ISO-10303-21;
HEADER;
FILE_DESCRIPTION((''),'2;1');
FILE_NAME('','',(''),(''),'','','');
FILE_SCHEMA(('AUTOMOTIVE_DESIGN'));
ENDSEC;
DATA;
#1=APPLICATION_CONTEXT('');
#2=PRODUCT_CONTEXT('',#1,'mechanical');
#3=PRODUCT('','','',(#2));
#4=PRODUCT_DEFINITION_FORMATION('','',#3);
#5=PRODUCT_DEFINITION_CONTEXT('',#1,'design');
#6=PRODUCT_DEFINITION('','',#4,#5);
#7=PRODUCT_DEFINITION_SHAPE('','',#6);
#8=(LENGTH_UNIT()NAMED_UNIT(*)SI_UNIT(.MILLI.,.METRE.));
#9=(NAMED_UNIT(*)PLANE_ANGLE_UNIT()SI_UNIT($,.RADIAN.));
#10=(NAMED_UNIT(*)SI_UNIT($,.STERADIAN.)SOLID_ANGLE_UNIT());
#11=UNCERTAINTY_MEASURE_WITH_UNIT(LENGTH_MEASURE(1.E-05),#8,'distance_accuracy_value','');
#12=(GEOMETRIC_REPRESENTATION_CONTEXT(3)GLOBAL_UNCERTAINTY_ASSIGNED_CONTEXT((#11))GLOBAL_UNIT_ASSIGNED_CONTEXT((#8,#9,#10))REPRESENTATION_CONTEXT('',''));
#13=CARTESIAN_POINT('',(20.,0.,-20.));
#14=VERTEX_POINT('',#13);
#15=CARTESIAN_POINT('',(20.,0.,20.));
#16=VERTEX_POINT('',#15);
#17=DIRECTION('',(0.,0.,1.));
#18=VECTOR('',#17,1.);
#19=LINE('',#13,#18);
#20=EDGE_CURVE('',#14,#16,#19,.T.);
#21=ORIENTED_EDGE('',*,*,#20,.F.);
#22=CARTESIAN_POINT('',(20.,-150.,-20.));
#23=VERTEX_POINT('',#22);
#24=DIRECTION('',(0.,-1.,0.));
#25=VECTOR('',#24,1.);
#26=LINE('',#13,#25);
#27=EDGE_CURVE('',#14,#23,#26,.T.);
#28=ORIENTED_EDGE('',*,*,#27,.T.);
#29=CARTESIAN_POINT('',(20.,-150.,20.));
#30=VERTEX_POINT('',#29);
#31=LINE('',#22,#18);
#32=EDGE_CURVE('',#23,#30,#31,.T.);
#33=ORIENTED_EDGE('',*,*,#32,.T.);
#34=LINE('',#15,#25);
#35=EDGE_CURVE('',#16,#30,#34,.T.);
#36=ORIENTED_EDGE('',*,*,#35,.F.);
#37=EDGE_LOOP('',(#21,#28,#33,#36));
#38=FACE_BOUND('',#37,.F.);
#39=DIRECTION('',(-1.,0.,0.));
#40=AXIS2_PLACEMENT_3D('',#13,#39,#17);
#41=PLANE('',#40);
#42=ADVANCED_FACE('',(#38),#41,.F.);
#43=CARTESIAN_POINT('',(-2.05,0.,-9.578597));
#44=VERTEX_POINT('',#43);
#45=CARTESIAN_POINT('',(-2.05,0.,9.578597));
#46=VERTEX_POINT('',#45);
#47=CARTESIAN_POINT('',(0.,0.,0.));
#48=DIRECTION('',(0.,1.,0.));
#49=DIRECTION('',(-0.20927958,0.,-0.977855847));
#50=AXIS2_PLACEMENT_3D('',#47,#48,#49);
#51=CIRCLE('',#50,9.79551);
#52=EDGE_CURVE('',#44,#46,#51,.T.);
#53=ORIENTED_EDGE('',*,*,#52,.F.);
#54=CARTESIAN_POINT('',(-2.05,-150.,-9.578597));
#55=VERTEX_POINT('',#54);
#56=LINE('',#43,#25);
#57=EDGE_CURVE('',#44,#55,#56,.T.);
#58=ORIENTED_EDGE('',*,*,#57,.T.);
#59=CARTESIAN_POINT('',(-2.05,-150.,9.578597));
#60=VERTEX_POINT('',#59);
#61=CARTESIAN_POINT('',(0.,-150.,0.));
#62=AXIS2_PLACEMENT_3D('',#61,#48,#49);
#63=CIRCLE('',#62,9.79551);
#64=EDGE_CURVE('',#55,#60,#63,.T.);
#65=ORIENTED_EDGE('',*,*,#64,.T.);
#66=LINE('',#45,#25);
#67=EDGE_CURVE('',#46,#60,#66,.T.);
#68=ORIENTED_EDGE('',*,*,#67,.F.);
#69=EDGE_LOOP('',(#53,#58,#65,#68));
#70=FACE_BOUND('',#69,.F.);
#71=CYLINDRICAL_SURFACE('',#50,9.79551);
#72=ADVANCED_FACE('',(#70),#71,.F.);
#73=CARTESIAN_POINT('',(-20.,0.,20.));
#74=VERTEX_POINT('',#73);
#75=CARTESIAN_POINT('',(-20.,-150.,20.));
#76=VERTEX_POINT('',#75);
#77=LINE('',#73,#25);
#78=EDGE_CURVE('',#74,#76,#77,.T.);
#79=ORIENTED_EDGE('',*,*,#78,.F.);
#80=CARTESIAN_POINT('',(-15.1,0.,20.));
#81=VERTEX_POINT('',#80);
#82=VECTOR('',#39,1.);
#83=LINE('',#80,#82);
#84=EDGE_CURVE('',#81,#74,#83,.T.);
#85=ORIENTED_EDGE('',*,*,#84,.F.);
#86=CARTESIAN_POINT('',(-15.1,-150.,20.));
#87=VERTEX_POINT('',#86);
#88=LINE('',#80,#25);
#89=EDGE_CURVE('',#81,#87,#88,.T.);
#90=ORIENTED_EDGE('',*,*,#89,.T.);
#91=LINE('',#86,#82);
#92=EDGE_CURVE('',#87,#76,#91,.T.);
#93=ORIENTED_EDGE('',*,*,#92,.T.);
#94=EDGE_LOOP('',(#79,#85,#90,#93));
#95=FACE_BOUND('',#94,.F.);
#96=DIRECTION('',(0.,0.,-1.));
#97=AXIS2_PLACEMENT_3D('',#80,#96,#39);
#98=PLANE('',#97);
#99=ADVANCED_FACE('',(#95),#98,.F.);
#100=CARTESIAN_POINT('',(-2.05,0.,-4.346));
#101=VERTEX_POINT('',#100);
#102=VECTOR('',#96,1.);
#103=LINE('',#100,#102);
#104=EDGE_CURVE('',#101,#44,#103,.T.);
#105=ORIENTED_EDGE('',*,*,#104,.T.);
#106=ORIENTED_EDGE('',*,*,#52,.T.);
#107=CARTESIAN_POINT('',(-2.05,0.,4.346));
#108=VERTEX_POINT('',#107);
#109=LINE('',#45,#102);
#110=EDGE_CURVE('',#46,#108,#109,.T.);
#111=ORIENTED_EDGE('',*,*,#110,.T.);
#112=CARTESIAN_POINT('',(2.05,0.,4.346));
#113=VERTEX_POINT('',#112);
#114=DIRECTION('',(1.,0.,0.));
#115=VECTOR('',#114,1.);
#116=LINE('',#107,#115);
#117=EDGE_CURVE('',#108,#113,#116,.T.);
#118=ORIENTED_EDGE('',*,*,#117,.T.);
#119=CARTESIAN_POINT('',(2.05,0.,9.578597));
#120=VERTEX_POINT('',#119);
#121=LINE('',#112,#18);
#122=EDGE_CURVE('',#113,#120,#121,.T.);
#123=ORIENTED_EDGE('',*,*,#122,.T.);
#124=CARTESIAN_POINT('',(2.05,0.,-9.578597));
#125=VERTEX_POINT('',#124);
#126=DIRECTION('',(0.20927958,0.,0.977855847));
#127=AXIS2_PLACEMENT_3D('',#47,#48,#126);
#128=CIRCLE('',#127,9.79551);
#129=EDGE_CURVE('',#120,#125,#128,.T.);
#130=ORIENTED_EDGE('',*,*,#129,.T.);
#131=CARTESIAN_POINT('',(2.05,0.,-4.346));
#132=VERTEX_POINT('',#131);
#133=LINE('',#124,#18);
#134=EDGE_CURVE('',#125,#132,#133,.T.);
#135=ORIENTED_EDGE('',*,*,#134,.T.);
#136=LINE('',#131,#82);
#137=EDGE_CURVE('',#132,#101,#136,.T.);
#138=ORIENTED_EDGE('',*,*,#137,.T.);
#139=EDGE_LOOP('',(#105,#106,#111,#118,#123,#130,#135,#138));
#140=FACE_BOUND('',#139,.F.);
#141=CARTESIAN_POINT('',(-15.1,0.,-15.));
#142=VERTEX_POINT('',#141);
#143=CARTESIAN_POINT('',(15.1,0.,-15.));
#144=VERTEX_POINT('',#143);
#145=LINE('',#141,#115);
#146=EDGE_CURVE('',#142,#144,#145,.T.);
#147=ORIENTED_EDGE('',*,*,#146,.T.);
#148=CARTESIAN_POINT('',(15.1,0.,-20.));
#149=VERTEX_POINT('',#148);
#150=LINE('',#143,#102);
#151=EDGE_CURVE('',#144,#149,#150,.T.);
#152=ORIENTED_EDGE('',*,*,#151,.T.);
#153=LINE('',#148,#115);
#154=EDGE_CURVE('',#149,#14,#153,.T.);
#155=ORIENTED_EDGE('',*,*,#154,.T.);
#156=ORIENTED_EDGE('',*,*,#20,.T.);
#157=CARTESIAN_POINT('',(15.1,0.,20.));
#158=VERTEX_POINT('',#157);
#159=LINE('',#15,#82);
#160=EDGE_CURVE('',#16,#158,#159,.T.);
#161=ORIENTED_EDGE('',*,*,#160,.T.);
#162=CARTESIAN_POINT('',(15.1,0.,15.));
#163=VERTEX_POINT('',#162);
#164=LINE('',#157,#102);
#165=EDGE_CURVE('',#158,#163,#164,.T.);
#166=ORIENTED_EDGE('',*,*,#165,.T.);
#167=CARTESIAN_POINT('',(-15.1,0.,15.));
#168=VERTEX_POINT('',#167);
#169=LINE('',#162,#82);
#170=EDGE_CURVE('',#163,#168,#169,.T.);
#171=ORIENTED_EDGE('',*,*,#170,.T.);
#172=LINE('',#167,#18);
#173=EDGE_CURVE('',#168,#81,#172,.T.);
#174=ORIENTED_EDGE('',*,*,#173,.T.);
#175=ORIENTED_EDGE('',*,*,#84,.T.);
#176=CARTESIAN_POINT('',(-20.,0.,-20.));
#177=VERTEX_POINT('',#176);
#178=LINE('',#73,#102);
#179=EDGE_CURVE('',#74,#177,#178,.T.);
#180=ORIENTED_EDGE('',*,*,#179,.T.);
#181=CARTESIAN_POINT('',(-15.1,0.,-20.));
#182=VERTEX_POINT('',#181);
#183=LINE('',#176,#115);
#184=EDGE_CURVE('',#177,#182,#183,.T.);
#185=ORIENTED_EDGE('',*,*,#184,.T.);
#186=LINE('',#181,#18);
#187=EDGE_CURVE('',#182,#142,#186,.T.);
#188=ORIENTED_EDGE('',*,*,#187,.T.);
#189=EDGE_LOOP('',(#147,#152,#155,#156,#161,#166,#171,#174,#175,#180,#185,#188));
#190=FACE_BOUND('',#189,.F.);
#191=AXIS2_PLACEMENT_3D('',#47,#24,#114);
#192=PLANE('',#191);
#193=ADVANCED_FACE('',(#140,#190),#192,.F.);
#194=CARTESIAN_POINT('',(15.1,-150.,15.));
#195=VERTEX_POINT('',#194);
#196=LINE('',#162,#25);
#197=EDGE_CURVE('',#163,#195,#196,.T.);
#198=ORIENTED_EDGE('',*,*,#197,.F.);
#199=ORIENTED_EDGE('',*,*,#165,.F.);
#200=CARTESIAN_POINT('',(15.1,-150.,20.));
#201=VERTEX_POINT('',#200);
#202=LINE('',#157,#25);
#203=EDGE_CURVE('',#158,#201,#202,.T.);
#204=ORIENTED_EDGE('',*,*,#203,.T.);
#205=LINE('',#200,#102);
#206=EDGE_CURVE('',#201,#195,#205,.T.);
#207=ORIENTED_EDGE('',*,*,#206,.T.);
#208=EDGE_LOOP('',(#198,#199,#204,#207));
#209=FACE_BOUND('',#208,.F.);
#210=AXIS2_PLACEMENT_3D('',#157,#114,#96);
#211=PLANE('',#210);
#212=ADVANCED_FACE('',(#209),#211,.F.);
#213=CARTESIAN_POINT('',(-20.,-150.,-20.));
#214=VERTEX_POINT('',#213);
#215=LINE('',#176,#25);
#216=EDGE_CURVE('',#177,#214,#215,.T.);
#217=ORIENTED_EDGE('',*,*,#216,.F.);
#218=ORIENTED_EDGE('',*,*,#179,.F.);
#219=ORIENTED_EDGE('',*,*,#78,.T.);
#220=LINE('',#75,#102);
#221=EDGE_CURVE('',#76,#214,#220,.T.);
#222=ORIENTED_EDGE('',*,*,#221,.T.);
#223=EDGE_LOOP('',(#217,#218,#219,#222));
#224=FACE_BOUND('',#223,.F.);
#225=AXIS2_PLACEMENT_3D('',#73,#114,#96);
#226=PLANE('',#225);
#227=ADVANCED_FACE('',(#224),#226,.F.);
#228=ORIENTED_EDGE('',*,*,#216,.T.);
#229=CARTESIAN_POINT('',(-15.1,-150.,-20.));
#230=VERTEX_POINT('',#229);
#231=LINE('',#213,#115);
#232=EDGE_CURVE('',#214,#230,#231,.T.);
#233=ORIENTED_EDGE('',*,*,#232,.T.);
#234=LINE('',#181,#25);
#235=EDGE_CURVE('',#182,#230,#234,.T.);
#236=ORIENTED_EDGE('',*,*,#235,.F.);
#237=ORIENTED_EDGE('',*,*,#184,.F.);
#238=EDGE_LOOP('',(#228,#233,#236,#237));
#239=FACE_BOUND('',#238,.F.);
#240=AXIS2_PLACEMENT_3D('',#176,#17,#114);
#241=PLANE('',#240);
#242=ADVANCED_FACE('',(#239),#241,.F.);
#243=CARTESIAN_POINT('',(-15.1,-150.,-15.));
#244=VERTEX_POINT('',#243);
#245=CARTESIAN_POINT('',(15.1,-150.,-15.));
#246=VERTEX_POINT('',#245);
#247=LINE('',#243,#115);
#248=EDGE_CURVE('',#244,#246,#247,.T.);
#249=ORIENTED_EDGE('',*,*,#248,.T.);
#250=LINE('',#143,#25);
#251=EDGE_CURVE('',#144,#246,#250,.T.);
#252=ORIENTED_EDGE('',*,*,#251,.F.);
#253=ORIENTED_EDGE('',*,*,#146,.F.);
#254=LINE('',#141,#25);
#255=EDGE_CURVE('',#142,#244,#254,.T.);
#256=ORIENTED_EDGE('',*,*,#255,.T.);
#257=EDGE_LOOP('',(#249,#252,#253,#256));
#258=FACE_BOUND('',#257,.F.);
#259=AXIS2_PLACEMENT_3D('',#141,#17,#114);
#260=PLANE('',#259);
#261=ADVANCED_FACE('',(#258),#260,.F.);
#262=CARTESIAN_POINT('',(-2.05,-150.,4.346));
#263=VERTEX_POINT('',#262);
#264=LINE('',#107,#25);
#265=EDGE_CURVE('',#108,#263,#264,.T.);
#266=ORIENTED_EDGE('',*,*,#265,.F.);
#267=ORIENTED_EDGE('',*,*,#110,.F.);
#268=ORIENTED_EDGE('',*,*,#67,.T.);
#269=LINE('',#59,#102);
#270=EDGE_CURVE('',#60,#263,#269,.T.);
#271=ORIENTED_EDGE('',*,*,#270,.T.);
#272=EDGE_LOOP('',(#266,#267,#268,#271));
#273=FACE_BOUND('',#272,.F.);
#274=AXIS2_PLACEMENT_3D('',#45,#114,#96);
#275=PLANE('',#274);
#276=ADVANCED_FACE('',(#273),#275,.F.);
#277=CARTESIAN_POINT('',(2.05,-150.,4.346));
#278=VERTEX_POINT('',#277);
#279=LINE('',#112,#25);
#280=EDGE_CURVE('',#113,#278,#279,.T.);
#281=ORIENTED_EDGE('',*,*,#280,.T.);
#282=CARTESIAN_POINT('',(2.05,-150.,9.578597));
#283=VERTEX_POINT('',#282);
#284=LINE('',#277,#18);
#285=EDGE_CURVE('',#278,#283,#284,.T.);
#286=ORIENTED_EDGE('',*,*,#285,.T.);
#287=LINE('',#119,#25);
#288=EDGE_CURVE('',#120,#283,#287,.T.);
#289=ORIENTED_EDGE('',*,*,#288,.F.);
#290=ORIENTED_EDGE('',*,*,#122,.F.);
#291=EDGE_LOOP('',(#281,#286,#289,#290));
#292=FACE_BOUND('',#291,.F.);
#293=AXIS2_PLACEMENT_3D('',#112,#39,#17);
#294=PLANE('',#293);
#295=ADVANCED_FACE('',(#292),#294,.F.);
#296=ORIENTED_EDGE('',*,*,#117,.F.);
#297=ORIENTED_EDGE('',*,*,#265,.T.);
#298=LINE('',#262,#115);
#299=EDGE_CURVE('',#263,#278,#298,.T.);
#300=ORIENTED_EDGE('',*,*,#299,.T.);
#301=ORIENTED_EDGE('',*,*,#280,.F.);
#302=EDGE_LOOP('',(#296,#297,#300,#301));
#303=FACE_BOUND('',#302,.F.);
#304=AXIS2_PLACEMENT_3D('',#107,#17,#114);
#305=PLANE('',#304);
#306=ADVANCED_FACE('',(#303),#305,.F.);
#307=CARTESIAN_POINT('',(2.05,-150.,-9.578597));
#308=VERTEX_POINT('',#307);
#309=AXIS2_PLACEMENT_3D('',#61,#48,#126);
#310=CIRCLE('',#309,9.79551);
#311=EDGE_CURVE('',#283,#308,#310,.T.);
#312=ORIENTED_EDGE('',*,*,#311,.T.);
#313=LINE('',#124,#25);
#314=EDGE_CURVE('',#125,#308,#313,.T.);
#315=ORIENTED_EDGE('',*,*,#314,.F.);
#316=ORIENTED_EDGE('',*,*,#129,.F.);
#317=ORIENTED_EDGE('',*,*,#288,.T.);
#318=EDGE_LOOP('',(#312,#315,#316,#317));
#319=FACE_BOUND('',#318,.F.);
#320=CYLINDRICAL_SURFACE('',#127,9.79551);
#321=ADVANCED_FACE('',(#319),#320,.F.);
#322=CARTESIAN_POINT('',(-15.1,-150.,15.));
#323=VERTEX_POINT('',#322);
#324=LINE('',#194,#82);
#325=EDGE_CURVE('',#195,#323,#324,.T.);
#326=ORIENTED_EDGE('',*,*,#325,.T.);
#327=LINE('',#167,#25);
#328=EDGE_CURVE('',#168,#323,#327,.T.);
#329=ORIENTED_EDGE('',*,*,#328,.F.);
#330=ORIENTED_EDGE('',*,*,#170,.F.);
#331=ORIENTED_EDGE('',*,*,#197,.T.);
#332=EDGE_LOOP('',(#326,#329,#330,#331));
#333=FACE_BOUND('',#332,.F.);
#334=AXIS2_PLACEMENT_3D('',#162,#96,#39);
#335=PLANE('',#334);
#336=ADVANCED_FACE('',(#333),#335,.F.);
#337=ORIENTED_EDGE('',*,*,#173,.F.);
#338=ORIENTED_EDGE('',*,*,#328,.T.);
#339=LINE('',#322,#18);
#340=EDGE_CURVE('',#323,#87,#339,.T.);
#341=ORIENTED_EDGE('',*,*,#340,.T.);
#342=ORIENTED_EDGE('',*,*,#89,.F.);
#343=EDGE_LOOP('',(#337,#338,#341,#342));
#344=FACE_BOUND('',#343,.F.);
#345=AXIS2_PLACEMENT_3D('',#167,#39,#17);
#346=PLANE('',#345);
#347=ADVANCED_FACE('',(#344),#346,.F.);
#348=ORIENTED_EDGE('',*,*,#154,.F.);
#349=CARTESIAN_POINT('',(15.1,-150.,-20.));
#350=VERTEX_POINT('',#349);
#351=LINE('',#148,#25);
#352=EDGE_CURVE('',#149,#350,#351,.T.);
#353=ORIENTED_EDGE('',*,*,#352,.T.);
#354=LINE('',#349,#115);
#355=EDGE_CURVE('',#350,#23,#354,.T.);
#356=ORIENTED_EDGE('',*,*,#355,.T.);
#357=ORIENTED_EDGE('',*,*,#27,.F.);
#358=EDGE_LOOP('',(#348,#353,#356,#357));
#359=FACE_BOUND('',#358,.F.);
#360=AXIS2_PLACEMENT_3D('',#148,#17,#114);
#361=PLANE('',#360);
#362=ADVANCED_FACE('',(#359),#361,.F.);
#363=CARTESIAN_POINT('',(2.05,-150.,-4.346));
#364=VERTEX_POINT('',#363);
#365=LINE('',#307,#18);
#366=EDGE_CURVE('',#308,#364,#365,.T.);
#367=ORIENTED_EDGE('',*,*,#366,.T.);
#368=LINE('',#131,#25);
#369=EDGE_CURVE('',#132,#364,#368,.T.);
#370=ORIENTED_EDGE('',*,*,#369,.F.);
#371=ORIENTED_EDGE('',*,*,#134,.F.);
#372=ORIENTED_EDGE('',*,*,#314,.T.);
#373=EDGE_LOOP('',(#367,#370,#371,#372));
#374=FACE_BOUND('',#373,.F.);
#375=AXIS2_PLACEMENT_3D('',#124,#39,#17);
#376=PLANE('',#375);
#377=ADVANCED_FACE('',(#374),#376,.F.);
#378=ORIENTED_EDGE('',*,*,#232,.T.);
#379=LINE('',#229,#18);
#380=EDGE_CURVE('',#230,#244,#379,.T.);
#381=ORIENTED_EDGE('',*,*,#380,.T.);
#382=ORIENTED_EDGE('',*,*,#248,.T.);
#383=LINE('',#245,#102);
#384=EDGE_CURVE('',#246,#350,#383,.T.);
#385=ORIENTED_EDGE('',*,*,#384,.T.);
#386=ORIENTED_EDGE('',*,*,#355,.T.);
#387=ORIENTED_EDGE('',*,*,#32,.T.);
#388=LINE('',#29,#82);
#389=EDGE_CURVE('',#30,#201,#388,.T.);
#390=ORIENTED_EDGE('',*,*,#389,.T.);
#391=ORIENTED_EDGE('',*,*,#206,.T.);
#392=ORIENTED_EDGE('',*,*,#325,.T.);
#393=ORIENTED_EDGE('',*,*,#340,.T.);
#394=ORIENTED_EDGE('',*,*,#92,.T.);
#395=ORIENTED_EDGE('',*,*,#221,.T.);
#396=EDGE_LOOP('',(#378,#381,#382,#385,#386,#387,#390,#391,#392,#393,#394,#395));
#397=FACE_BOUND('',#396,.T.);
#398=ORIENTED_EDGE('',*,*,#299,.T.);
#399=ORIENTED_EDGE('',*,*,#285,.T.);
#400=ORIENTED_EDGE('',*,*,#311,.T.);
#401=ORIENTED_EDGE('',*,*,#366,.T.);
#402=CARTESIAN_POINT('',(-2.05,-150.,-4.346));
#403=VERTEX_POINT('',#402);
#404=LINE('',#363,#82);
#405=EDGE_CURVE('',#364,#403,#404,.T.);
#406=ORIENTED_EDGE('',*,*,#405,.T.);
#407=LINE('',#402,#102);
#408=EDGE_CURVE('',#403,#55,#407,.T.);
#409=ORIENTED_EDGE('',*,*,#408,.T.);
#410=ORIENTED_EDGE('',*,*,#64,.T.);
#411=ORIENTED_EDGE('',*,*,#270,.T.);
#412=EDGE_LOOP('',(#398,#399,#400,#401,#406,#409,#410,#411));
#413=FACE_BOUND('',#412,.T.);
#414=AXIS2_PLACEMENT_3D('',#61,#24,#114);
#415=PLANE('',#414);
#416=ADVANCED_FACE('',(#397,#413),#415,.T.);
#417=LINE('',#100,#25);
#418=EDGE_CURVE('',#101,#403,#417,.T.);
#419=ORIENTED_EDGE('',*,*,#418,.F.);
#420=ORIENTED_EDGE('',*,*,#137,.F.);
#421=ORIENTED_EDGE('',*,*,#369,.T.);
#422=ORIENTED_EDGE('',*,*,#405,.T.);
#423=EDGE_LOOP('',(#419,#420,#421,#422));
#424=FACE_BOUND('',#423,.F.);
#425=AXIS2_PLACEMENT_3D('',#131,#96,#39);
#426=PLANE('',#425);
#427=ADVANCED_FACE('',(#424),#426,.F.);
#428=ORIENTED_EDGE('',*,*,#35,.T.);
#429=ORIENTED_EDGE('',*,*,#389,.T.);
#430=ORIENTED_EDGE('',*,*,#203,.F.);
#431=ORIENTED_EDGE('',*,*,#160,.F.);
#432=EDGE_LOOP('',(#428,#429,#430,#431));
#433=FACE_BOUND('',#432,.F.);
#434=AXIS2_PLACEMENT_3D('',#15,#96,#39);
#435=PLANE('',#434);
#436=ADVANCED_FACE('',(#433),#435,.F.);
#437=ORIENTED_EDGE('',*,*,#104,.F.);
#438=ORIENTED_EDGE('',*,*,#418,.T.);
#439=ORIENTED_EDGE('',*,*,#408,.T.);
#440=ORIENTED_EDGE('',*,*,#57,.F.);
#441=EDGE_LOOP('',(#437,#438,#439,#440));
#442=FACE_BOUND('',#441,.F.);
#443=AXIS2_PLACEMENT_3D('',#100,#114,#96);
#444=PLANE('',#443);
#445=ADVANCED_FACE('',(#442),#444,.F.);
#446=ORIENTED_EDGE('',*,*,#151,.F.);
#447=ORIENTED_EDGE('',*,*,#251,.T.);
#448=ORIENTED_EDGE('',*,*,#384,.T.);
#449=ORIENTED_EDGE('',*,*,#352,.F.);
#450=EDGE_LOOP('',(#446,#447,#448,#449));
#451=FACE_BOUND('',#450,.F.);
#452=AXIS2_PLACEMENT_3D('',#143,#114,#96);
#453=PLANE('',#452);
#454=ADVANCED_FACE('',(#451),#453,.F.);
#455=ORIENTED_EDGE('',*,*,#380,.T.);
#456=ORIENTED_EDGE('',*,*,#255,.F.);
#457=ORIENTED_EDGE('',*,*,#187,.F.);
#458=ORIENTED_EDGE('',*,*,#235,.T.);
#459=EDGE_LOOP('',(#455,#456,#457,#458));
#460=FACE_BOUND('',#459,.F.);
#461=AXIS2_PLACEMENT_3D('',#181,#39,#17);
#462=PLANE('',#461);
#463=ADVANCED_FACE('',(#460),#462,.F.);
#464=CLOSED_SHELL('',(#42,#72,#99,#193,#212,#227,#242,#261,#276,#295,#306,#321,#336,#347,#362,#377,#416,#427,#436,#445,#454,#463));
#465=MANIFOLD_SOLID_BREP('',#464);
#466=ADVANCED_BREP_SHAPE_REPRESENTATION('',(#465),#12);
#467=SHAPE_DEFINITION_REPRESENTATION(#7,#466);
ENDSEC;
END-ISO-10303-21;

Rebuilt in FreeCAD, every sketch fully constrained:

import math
import FreeCAD as App
import Part
import Sketcher
from FreeCAD import Vector
Q = App.Units.Quantity


def add_polygon(sketch, points):
    """Adds a closed chain of lines whose ends are joined by coincident constraints."""
    first, n = sketch.GeometryCount, len(points)
    for a, b in zip(points, points[1:] + points[:1]):
        sketch.addGeometry(Part.LineSegment(App.Vector(*a, 0), App.Vector(*b, 0)), False)
    for i in range(n):
        sketch.addConstraint(Sketcher.Constraint("Coincident", first + i, 2, first + (i + 1) % n, 1))

doc = App.newDocument("Part")
body = doc.addObject("PartDesign::Body", "Body")

sketch1 = body.newObject("Sketcher::SketchObject", "Sketch")
sketch1.AttachmentSupport = (doc.getObject("XZ_Plane"), [""])
sketch1.MapMode = "FlatFace"
add_polygon(sketch1, [(20, -20), (20, 20), (15.1, 20), (15.1, 15), (-15.1, 15), (-15.1, 20), (-20, 20), (-20, -20), (-15.1, -20), (-15.1, -15), (15.1, -15), (15.1, -20)])
sketch1.addGeometry(Part.LineSegment(Vector(2, 4.3, 0), Vector(2, 9.6, 0)), False)
sketch1.addGeometry(Part.ArcOfCircle(Part.Circle(Vector(0, 0, 0), Vector(0, 0, 1), 9.8), math.radians(-78), math.radians(78)), False)
sketch1.addGeometry(Part.LineSegment(Vector(2, -9.6, 0), Vector(2, -4.3, 0)), False)
sketch1.addGeometry(Part.LineSegment(Vector(2, -4.3, 0), Vector(-2, -4.3, 0)), False)
sketch1.addGeometry(Part.LineSegment(Vector(-2, -4.3, 0), Vector(-2, -9.6, 0)), False)
sketch1.addGeometry(Part.ArcOfCircle(Part.Circle(Vector(0, 0, 0), Vector(0, 0, 1), 9.8), math.radians(102), math.radians(258)), False)
sketch1.addGeometry(Part.LineSegment(Vector(-2, 9.6, 0), Vector(-2, 4.3, 0)), False)
sketch1.addGeometry(Part.LineSegment(Vector(-2, 4.3, 0), Vector(2, 4.3, 0)), False)
sketch1.addConstraint([
    Sketcher.Constraint("Coincident", 12, 2, 13, 2),
    Sketcher.Constraint("Coincident", 13, 1, 14, 1),
    Sketcher.Constraint("Coincident", 14, 2, 15, 1),
    Sketcher.Constraint("Coincident", 15, 2, 16, 1),
    Sketcher.Constraint("Coincident", 16, 2, 17, 2),
    Sketcher.Constraint("Coincident", 17, 1, 18, 1),
    Sketcher.Constraint("Coincident", 18, 2, 19, 1),
    Sketcher.Constraint("Coincident", 19, 2, 12, 1),
    Sketcher.Constraint("Vertical", 0),
    Sketcher.Constraint("Horizontal", 1),
    Sketcher.Constraint("Vertical", 2),
    Sketcher.Constraint("Horizontal", 3),
    Sketcher.Constraint("Vertical", 4),
    Sketcher.Constraint("Horizontal", 5),
    Sketcher.Constraint("Vertical", 6),
    Sketcher.Constraint("Horizontal", 7),
    Sketcher.Constraint("Vertical", 8),
    Sketcher.Constraint("Horizontal", 9),
    Sketcher.Constraint("Vertical", 10),
    Sketcher.Constraint("Horizontal", 11),
    Sketcher.Constraint("Vertical", 12),
    Sketcher.Constraint("Vertical", 14),
    Sketcher.Constraint("Horizontal", 15),
    Sketcher.Constraint("Vertical", 16),
    Sketcher.Constraint("Vertical", 18),
    Sketcher.Constraint("Horizontal", 19),
    Sketcher.Constraint("Coincident", 13, 3, -1, 1),
    Sketcher.Constraint("Coincident", 17, 3, -1, 1),
    Sketcher.Constraint("Equal", 13, 17),
    Sketcher.Constraint("Symmetric", 0, 2, 6, 2, -1, 1),
    Sketcher.Constraint("Symmetric", 2, 2, 8, 2, -1, 1),
    Sketcher.Constraint("Symmetric", 4, 2, 10, 2, -1, 1),
    Sketcher.Constraint("Symmetric", 14, 2, 18, 2, -1, 1),
    Sketcher.Constraint("Symmetric", 1, 2, 4, 2, -2),
    Sketcher.Constraint("Horizontal", 13, 1, 16, 2),
    Sketcher.Constraint("Horizontal", 12, 2, 17, 1),
    Sketcher.Constraint("DistanceY", 0, 1, 0, 2, Q("40 mm")),
    Sketcher.Constraint("DistanceY", 2, 2, 2, 1, Q("5 mm")),
    Sketcher.Constraint("DistanceX", 1, 2, 1, 1, Q("4.9 mm")),
    Sketcher.Constraint("DistanceX", 3, 2, 3, 1, Q("30.2 mm")),
    Sketcher.Constraint("DistanceX", 15, 2, 15, 1, Q("4.1 mm")),
    Sketcher.Constraint("Radius", 13, Q("9.79551 mm")),
    Sketcher.Constraint("DistanceY", 14, 2, -1, 1, Q("4.346 mm")),
])
pad1 = body.newObject("PartDesign::Pad", "Pad")
pad1.Profile = sketch1
pad1.Length = 150

doc.recompute()
